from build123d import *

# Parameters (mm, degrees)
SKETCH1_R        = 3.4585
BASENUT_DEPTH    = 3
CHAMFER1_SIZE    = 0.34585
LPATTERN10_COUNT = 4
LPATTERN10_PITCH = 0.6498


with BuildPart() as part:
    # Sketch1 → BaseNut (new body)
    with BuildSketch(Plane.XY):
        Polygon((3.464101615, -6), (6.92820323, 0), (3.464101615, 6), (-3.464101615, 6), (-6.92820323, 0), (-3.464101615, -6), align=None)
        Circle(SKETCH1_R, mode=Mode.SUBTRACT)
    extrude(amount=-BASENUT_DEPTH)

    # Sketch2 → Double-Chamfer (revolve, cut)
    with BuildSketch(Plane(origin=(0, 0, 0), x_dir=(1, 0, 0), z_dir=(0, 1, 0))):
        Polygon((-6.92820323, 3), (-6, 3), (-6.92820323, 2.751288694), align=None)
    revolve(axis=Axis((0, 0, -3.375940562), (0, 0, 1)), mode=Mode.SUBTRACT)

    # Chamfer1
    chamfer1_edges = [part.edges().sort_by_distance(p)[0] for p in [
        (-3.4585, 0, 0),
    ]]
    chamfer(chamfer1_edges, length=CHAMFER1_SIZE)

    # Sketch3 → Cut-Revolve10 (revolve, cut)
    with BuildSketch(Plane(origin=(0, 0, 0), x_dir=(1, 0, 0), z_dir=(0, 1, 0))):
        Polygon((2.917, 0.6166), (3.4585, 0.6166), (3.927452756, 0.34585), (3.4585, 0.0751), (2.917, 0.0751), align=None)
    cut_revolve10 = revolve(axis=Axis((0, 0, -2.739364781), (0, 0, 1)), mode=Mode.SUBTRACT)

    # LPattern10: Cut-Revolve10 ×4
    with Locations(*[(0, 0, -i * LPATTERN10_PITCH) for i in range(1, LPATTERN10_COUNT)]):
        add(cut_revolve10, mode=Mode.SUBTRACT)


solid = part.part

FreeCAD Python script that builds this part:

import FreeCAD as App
import Part
import Sketcher
Q = App.Units.Quantity


def edges_at(feature, points):
    """Names of the edges that pass closest to the given points."""
    edges = feature.Shape.Edges
    near = lambda p: min(range(len(edges)), key=lambda i: edges[i].distToShape(Part.Vertex(*p))[0])
    return sorted({f"Edge{near(p) + 1}" for p in points})

doc = App.newDocument("Part")
body = doc.addObject("PartDesign::Body", "Body")

# Sketch on XY plane
sketch1 = body.newObject("Sketcher::SketchObject", "Sketch")
sketch1.AttachmentSupport = (doc.getObject("XY_Plane"), [""])
sketch1.MapMode = "FlatFace"
sketch1.addGeometry([
    Part.LineSegment(App.Vector(3.5, -6, 0), App.Vector(6.9, 0, 0)),  # 0
    Part.LineSegment(App.Vector(6.9, 0, 0), App.Vector(3.5, 6, 0)),  # 1
    Part.LineSegment(App.Vector(3.5, 6, 0), App.Vector(-3.5, 6, 0)),  # 2
    Part.LineSegment(App.Vector(-3.5, 6, 0), App.Vector(-6.9, 0, 0)),  # 3
    Part.LineSegment(App.Vector(-6.9, 0, 0), App.Vector(-3.5, -6, 0)),  # 4
    Part.LineSegment(App.Vector(-3.5, -6, 0), App.Vector(3.5, -6, 0)),  # 5
    Part.Circle(App.Vector(0, 0, 0), App.Vector(0, 0, 1), 3.5),  # 6
], False)
sketch1.addConstraint([
    Sketcher.Constraint("Coincident", 0, 2, 1, 1),
    Sketcher.Constraint("Coincident", 1, 2, 2, 1),
    Sketcher.Constraint("Coincident", 2, 2, 3, 1),
    Sketcher.Constraint("Coincident", 3, 2, 4, 1),
    Sketcher.Constraint("Coincident", 4, 2, 5, 1),
    Sketcher.Constraint("Coincident", 5, 2, 0, 1),
    Sketcher.Constraint("Horizontal", 2),
    Sketcher.Constraint("Horizontal", 5),
    Sketcher.Constraint("Coincident", 6, 3, -1, 1),
    Sketcher.Constraint("Symmetric", 0, 2, 3, 2, -1, 1),
    Sketcher.Constraint("Symmetric", 1, 2, 4, 2, -1, 1),
    Sketcher.Constraint("PointOnObject", 0, 2, -1),
    Sketcher.Constraint("Parallel", 0, 3),
    Sketcher.Constraint("Vertical", 2, 2, 4, 2),
    Sketcher.Constraint("Angle", 0, Q("60 deg")),
    Sketcher.Constraint("Diameter", 6, Q("6.917 mm")),
    Sketcher.Constraint("DistanceY", -1, 1, 1, 2, Q("6 mm")),
    Sketcher.Constraint("DistanceX", -1, 1, 1, 2, Q("3.464102 mm")),
])
pad1 = body.newObject("PartDesign::Pad", "Pad")
pad1.Profile = sketch1
pad1.Length = 3
pad1.Reversed = True

# Sketch on XZ plane
sketch2 = body.newObject("Sketcher::SketchObject", "Sketch001")
sketch2.AttachmentSupport = (doc.getObject("XZ_Plane"), [""])
sketch2.MapMode = "FlatFace"
sketch2.addGeometry([
    Part.LineSegment(App.Vector(-6, -3, 0), App.Vector(-6.93, -3, 0)),
    Part.LineSegment(App.Vector(-6.93, -3, 0), App.Vector(-6.93, -2.75, 0)),
    Part.LineSegment(App.Vector(-6.93, -2.75, 0), App.Vector(-6, -3, 0)),
], False)
sketch2.addConstraint([
    Sketcher.Constraint("Coincident", 0, 2, 1, 1),
    Sketcher.Constraint("Coincident", 1, 2, 2, 1),
    Sketcher.Constraint("Coincident", 2, 2, 0, 1),
    Sketcher.Constraint("Horizontal", 0),
    Sketcher.Constraint("Vertical", 1),
    Sketcher.Constraint("Angle", 2, Q("-15 deg")),
    Sketcher.Constraint("DistanceY", 0, 2, -1, 1, Q("3 mm")),
    Sketcher.Constraint("DistanceX", 2, 2, -1, 1, Q("6 mm")),
    Sketcher.Constraint("DistanceY", 1, 1, 1, 2, Q("0.248711 mm")),
])
groove = body.newObject("PartDesign::Groove", "Groove")
groove.Profile = sketch2
groove.ReferenceAxis = (sketch2, ["V_Axis"])
groove.Angle = 360
doc.recompute()

chamfer = body.newObject("PartDesign::Chamfer", "Chamfer")
chamfer.Base = (groove, edges_at(groove, [(-3.458, 0, 0)]))
chamfer.Size = 0.34585

# Sketch on XZ plane
sketch3 = body.newObject("Sketcher::SketchObject", "Sketch002")
sketch3.AttachmentSupport = (doc.getObject("XZ_Plane"), [""])
sketch3.MapMode = "FlatFace"
sketch3.addGeometry([
    Part.LineSegment(App.Vector(3.5, -0.6, 0), App.Vector(2.9, -0.6, 0)),  # 0
    Part.LineSegment(App.Vector(2.9, -0.6, 0), App.Vector(2.9, -0.1, 0)),  # 1
    Part.LineSegment(App.Vector(2.9, -0.1, 0), App.Vector(3.5, -0.1, 0)),  # 2
    Part.LineSegment(App.Vector(3.5, -0.1, 0), App.Vector(3.9, -0.3, 0)),  # 3
    Part.LineSegment(App.Vector(3.9, -0.3, 0), App.Vector(3.5, -0.6, 0)),  # 4
], False)
sketch3.addConstraint([
    Sketcher.Constraint("Coincident", 0, 2, 1, 1),
    Sketcher.Constraint("Coincident", 1, 2, 2, 1),
    Sketcher.Constraint("Coincident", 2, 2, 3, 1),
    Sketcher.Constraint("Coincident", 3, 2, 4, 1),
    Sketcher.Constraint("Coincident", 4, 2, 0, 1),
    Sketcher.Constraint("Horizontal", 0),
    Sketcher.Constraint("Vertical", 1),
    Sketcher.Constraint("Horizontal", 2),
    Sketcher.Constraint("Vertical", 2, 2, 4, 2),
    Sketcher.Constraint("Equal", 2, 1),
    Sketcher.Constraint("Equal", 3, 4),
    Sketcher.Constraint("Angle", 3, Q("-30 deg")),
    Sketcher.Constraint("DistanceX", 0, 2, 0, 1, Q("0.5415 mm")),
    Sketcher.Constraint("DistanceX", -1, 1, 0, 2, Q("2.917 mm")),
    Sketcher.Constraint("DistanceY", 0, 2, -1, 1, Q("0.6166 mm")),
])
groove2 = body.newObject("PartDesign::Groove", "Groove001")
groove2.Profile = sketch3
groove2.ReferenceAxis = (sketch3, ["V_Axis"])
groove2.Angle = 360
doc.recompute()

linearpattern = body.newObject("PartDesign::LinearPattern", "LinearPattern")
linearpattern.Originals = [groove2]
linearpattern.Direction = (doc.getObject("Z_Axis"), [""])
linearpattern.Mode = "offset"
linearpattern.Offset = 0.6498
linearpattern.Occurrences = 4
linearpattern.Reversed = True
body.Tip = linearpattern

doc.recompute()
